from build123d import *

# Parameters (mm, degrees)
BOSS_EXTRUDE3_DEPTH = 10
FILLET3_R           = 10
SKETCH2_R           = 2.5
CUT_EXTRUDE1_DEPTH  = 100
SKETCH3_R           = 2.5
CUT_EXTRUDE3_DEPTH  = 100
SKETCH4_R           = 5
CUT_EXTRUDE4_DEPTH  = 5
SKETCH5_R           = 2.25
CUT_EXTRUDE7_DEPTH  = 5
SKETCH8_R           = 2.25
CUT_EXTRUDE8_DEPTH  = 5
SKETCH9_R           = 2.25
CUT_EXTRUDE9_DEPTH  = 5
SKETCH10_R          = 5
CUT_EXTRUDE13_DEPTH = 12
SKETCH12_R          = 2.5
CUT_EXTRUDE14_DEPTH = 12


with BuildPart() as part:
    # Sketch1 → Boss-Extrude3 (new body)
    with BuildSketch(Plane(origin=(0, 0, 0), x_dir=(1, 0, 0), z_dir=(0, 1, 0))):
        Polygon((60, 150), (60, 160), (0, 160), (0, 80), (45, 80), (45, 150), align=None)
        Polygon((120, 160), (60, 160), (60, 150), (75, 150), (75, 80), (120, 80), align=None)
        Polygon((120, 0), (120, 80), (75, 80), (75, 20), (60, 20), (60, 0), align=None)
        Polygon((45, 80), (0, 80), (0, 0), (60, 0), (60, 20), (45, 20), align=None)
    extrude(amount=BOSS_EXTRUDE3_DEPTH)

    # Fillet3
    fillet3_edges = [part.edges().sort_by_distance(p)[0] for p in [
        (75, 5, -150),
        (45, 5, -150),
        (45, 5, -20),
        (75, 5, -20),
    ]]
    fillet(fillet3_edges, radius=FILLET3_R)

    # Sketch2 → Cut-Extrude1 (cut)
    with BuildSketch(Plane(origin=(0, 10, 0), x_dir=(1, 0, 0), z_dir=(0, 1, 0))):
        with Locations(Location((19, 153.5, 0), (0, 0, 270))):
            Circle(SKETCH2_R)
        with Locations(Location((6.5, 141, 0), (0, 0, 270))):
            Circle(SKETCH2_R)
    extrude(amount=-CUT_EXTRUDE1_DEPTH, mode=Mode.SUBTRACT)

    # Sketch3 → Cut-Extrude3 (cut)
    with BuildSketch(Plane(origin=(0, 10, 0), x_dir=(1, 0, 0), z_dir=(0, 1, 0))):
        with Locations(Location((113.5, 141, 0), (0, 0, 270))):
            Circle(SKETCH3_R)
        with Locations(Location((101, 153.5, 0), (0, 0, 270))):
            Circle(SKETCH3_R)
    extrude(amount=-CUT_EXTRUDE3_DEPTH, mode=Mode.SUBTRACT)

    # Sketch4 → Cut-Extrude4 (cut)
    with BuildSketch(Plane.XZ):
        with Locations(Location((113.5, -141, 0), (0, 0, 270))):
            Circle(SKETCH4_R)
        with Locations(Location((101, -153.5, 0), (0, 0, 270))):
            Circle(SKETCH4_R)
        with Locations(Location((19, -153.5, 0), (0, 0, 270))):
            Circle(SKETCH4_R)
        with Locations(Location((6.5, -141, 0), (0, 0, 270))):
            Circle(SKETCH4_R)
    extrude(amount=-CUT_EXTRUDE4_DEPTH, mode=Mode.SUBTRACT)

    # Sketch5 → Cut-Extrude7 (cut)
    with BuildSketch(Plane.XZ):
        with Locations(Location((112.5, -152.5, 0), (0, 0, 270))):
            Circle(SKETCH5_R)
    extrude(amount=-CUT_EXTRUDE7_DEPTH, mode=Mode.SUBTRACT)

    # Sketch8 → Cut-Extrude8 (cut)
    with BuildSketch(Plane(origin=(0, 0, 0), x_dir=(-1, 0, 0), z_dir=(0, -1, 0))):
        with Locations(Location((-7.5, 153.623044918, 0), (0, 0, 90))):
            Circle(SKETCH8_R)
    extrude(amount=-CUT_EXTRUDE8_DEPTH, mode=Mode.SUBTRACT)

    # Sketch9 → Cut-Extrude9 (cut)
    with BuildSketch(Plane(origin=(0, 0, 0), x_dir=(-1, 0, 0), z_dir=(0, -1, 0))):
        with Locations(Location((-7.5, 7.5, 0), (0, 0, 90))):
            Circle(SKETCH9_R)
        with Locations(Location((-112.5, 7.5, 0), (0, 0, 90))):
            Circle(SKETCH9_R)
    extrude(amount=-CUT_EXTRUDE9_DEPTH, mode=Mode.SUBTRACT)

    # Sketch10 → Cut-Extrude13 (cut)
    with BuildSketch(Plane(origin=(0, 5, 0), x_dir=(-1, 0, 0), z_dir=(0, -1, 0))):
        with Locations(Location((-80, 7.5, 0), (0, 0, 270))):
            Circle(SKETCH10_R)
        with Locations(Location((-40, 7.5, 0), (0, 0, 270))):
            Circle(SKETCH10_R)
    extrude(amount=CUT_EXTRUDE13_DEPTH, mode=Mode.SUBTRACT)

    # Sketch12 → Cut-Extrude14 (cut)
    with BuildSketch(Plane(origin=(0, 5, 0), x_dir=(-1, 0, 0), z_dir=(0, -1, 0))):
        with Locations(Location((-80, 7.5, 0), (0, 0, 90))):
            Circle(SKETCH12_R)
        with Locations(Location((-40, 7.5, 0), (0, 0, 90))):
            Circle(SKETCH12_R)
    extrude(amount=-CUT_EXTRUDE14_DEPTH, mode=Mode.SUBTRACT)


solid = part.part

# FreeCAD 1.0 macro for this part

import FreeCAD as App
import Part
import Sketcher
from FreeCAD import Vector
Q = App.Units.Quantity


def edges_at(feature, points):
    """Names of the edges that pass closest to the given points."""
    edges = feature.Shape.Edges
    near = lambda p: min(range(len(edges)), key=lambda i: edges[i].distToShape(Part.Vertex(*p))[0])
    return sorted({f"Edge{near(p) + 1}" for p in points})

doc = App.newDocument("Part")
body = doc.addObject("PartDesign::Body", "Body")

sketch1 = doc.addObject("Sketcher::SketchObject", "Sketch")
body.addObject(sketch1)
sketch1.AttachmentSupport = (doc.XZ_Plane, [""])
sketch1.MapMode = "FlatFace"
sketch1.addGeometry(Part.LineSegment(Vector(0, -160, 0), Vector(0, 0, 0)), False)
sketch1.addGeometry(Part.LineSegment(Vector(0, 0, 0), Vector(120, 0, 0)), False)
sketch1.addGeometry(Part.LineSegment(Vector(120, 0, 0), Vector(120, -160, 0)), False)
sketch1.addGeometry(Part.LineSegment(Vector(120, -160, 0), Vector(0, -160, 0)), False)
sketch1.addGeometry(Part.LineSegment(Vector(45, -150, 0), Vector(75, -150, 0)), False)
sketch1.addGeometry(Part.LineSegment(Vector(75, -150, 0), Vector(75, -20, 0)), False)
sketch1.addGeometry(Part.LineSegment(Vector(75, -20, 0), Vector(45, -20, 0)), False)
sketch1.addGeometry(Part.LineSegment(Vector(45, -20, 0), Vector(45, -150, 0)), False)
sketch1.addConstraint(Sketcher.Constraint("Coincident", 0, 2, 1, 1))
sketch1.addConstraint(Sketcher.Constraint("Coincident", 1, 2, 2, 1))
sketch1.addConstraint(Sketcher.Constraint("Coincident", 2, 2, 3, 1))
sketch1.addConstraint(Sketcher.Constraint("Coincident", 3, 2, 0, 1))
sketch1.addConstraint(Sketcher.Constraint("Coincident", 4, 2, 5, 1))
sketch1.addConstraint(Sketcher.Constraint("Coincident", 5, 2, 6, 1))
sketch1.addConstraint(Sketcher.Constraint("Coincident", 6, 2, 7, 1))
sketch1.addConstraint(Sketcher.Constraint("Coincident", 7, 2, 4, 1))
sketch1.addConstraint(Sketcher.Constraint("Vertical", 0))
sketch1.addConstraint(Sketcher.Constraint("Horizontal", 1))
sketch1.addConstraint(Sketcher.Constraint("Vertical", 2))
sketch1.addConstraint(Sketcher.Constraint("Horizontal", 3))
sketch1.addConstraint(Sketcher.Constraint("Horizontal", 4))
sketch1.addConstraint(Sketcher.Constraint("Vertical", 5))
sketch1.addConstraint(Sketcher.Constraint("Horizontal", 6))
sketch1.addConstraint(Sketcher.Constraint("Vertical", 7))
sketch1.addConstraint(Sketcher.Constraint("Coincident", 0, 2, -1, 1))
sketch1.addConstraint(Sketcher.Constraint("DistanceX", 1, 1, 1, 2, Q("120 mm")))
sketch1.addConstraint(Sketcher.Constraint("DistanceX", 4, 1, 4, 2, Q("30 mm")))
sketch1.addConstraint(Sketcher.Constraint("DistanceY", 0, 1, 0, 2, Q("160 mm")))
sketch1.addConstraint(Sketcher.Constraint("DistanceY", 5, 1, 5, 2, Q("130 mm")))
sketch1.addConstraint(Sketcher.Constraint("DistanceX", -1, 1, 4, 2, Q("75 mm")))
sketch1.addConstraint(Sketcher.Constraint("DistanceY", 4, 2, -1, 1, Q("150 mm")))
pad1 = doc.addObject("PartDesign::Pad", "Pad")
body.addObject(pad1)
pad1.Profile = sketch1
pad1.Length = 10
pad1.Reversed = True
doc.recompute()

fillet = doc.addObject("PartDesign::Fillet", "Fillet")
body.addObject(fillet)
fillet.Base = (pad1, edges_at(pad1, [
    (75, 5, -150),
    (45, 5, -150),
    (45, 5, -20),
    (75, 5, -20),
]))
fillet.Radius = 10

sketch2 = doc.addObject("Sketcher::SketchObject", "Sketch001")
body.addObject(sketch2)
sketch2.AttachmentSupport = (doc.XZ_Plane, [""])
sketch2.MapMode = "FlatFace"
sketch2.AttachmentOffset = App.Placement(Vector(0, 0, -10), App.Rotation())
sketch2.addGeometry(Part.Circle(Vector(19, -153.5, 0), Vector(0, 0, 1), 2.5), False)
sketch2.addGeometry(Part.Circle(Vector(6.5, -141, 0), Vector(0, 0, 1), 2.5), False)
sketch2.addConstraint(Sketcher.Constraint("Equal", 0, 1))
sketch2.addConstraint(Sketcher.Constraint("Diameter", 0, Q("5 mm")))
sketch2.addConstraint(Sketcher.Constraint("DistanceX", -1, 1, 0, 3, Q("19 mm")))
sketch2.addConstraint(Sketcher.Constraint("DistanceY", 1, 3, -1, 1, Q("141 mm")))
sketch2.addConstraint(Sketcher.Constraint("DistanceY", 0, 3, -1, 1, Q("153.5 mm")))
sketch2.addConstraint(Sketcher.Constraint("DistanceX", -1, 1, 1, 3, Q("6.5 mm")))
pocket1 = doc.addObject("PartDesign::Pocket", "Pocket")
body.addObject(pocket1)
pocket1.Profile = sketch2
pocket1.Length = 100
pocket1.Reversed = True

sketch3 = doc.addObject("Sketcher::SketchObject", "Sketch002")
body.addObject(sketch3)
sketch3.AttachmentSupport = (doc.XZ_Plane, [""])
sketch3.MapMode = "FlatFace"
sketch3.AttachmentOffset = App.Placement(Vector(0, 0, -10), App.Rotation())
sketch3.addGeometry(Part.Circle(Vector(113.5, -141, 0), Vector(0, 0, 1), 2.5), False)
sketch3.addGeometry(Part.Circle(Vector(101, -153.5, 0), Vector(0, 0, 1), 2.5), False)
sketch3.addConstraint(Sketcher.Constraint("Equal", 0, 1))
sketch3.addConstraint(Sketcher.Constraint("Diameter", 0, Q("5 mm")))
sketch3.addConstraint(Sketcher.Constraint("DistanceY", 0, 3, -1, 1, Q("141 mm")))
sketch3.addConstraint(Sketcher.Constraint("DistanceX", -1, 1, 1, 3, Q("101 mm")))
sketch3.addConstraint(Sketcher.Constraint("DistanceX", -1, 1, 0, 3, Q("113.5 mm")))
sketch3.addConstraint(Sketcher.Constraint("DistanceY", 1, 3, -1, 1, Q("153.5 mm")))
pocket2 = doc.addObject("PartDesign::Pocket", "Pocket001")
body.addObject(pocket2)
pocket2.Profile = sketch3
pocket2.Length = 100
pocket2.Reversed = True

sketch4 = doc.addObject("Sketcher::SketchObject", "Sketch003")
body.addObject(sketch4)
sketch4.AttachmentSupport = (doc.XZ_Plane, [""])
sketch4.MapMode = "FlatFace"
sketch4.addGeometry(Part.Circle(Vector(114, -141, 0), Vector(0, 0, 1), 5), False)
sketch4.addGeometry(Part.Circle(Vector(101, -154, 0), Vector(0, 0, 1), 5), False)
sketch4.addGeometry(Part.Circle(Vector(19, -154, 0), Vector(0, 0, 1), 5), False)
sketch4.addGeometry(Part.Circle(Vector(6, -141, 0), Vector(0, 0, 1), 5), False)
sketch4.addConstraint(Sketcher.Constraint("Equal", 0, 1))
sketch4.addConstraint(Sketcher.Constraint("Equal", 1, 2))
sketch4.addConstraint(Sketcher.Constraint("Equal", 2, 3))
sketch4.addConstraint(Sketcher.Constraint("Horizontal", 1, 3, 2, 3))
sketch4.addConstraint(Sketcher.Constraint("Horizontal", 0, 3, 3, 3))
sketch4.addConstraint(Sketcher.Constraint("Diameter", 0, Q("10 mm")))
sketch4.addConstraint(Sketcher.Constraint("DistanceY", 0, 3, -1, 1, Q("141 mm")))
sketch4.addConstraint(Sketcher.Constraint("DistanceX", -1, 1, 1, 3, Q("101 mm")))
sketch4.addConstraint(Sketcher.Constraint("DistanceX", -1, 1, 2, 3, Q("19 mm")))
sketch4.addConstraint(Sketcher.Constraint("DistanceX", 3, 3, 0, 3, Q("107 mm")))
sketch4.addConstraint(Sketcher.Constraint("DistanceX", -1, 1, 0, 3, Q("113.5 mm")))
sketch4.addConstraint(Sketcher.Constraint("DistanceY", 1, 3, -1, 1, Q("153.5 mm")))
pocket3 = doc.addObject("PartDesign::Pocket", "Pocket002")
body.addObject(pocket3)
pocket3.Profile = sketch4
pocket3.Length = 5

sketch5 = doc.addObject("Sketcher::SketchObject", "Sketch004")
body.addObject(sketch5)
sketch5.AttachmentSupport = (doc.XZ_Plane, [""])
sketch5.MapMode = "FlatFace"
sketch5.addGeometry(Part.Circle(Vector(112.5, -152.5, 0), Vector(0, 0, 1), 2.2), False)
sketch5.addConstraint(Sketcher.Constraint("Diameter", 0, Q("4.5 mm")))
sketch5.addConstraint(Sketcher.Constraint("DistanceX", -1, 1, 0, 3, Q("112.5 mm")))
sketch5.addConstraint(Sketcher.Constraint("DistanceY", 0, 3, -1, 1, Q("152.5 mm")))
pocket4 = doc.addObject("PartDesign::Pocket", "Pocket003")
body.addObject(pocket4)
pocket4.Profile = sketch5
pocket4.Length = 5

sketch6 = doc.addObject("Sketcher::SketchObject", "Sketch005")
body.addObject(sketch6)
sketch6.AttachmentSupport = (doc.XZ_Plane, [""])
sketch6.MapMode = "FlatFace"
sketch6.addGeometry(Part.Circle(Vector(7.5, -153.6, 0), Vector(0, 0, 1), 2.2), False)
sketch6.addConstraint(Sketcher.Constraint("Diameter", 0, Q("4.5 mm")))
sketch6.addConstraint(Sketcher.Constraint("DistanceX", -1, 1, 0, 3, Q("7.5 mm")))
sketch6.addConstraint(Sketcher.Constraint("DistanceY", 0, 3, -1, 1, Q("153.623045 mm")))
pocket5 = doc.addObject("PartDesign::Pocket", "Pocket004")
body.addObject(pocket5)
pocket5.Profile = sketch6
pocket5.Length = 5

sketch7 = doc.addObject("Sketcher::SketchObject", "Sketch006")
body.addObject(sketch7)
sketch7.AttachmentSupport = (doc.XZ_Plane, [""])
sketch7.MapMode = "FlatFace"
sketch7.addGeometry(Part.Circle(Vector(7.5, -7.5, 0), Vector(0, 0, 1), 2.2), False)
sketch7.addGeometry(Part.Circle(Vector(112.5, -7.5, 0), Vector(0, 0, 1), 2.2), False)
sketch7.addConstraint(Sketcher.Constraint("Equal", 0, 1))
sketch7.addConstraint(Sketcher.Constraint("Horizontal", 0, 3, 1, 3))
sketch7.addConstraint(Sketcher.Constraint("Diameter", 0, Q("4.5 mm")))
sketch7.addConstraint(Sketcher.Constraint("DistanceX", 0, 3, 1, 3, Q("105 mm")))
sketch7.addConstraint(Sketcher.Constraint("DistanceX", -1, 1, 0, 3, Q("7.5 mm")))
sketch7.addConstraint(Sketcher.Constraint("DistanceY", 0, 3, -1, 1, Q("7.5 mm")))
pocket6 = doc.addObject("PartDesign::Pocket", "Pocket005")
body.addObject(pocket6)
pocket6.Profile = sketch7
pocket6.Length = 5

sketch8 = doc.addObject("Sketcher::SketchObject", "Sketch007")
body.addObject(sketch8)
sketch8.AttachmentSupport = (doc.XZ_Plane, [""])
sketch8.MapMode = "FlatFace"
sketch8.AttachmentOffset = App.Placement(Vector(0, 0, -5), App.Rotation())
sketch8.addGeometry(Part.Circle(Vector(80, -8, 0), Vector(0, 0, 1), 5), False)
sketch8.addGeometry(Part.Circle(Vector(40, -8, 0), Vector(0, 0, 1), 5), False)
sketch8.addConstraint(Sketcher.Constraint("Equal", 0, 1))
sketch8.addConstraint(Sketcher.Constraint("Horizontal", 0, 3, 1, 3))
sketch8.addConstraint(Sketcher.Constraint("Diameter", 0, Q("10 mm")))
sketch8.addConstraint(Sketcher.Constraint("DistanceX", -1, 1, 0, 3, Q("80 mm")))
sketch8.addConstraint(Sketcher.Constraint("DistanceX", -1, 1, 1, 3, Q("40 mm")))
sketch8.addConstraint(Sketcher.Constraint("DistanceY", 0, 3, -1, 1, Q("7.5 mm")))
pocket7 = doc.addObject("PartDesign::Pocket", "Pocket006")
body.addObject(pocket7)
pocket7.Profile = sketch8
pocket7.Length = 12
pocket7.Reversed = True

sketch9 = doc.addObject("Sketcher::SketchObject", "Sketch008")
body.addObject(sketch9)
sketch9.AttachmentSupport = (doc.XZ_Plane, [""])
sketch9.MapMode = "FlatFace"
sketch9.AttachmentOffset = App.Placement(Vector(0, 0, -5), App.Rotation())
sketch9.addGeometry(Part.Circle(Vector(80, -7.5, 0), Vector(0, 0, 1), 2.5), False)
sketch9.addGeometry(Part.Circle(Vector(40, -7.5, 0), Vector(0, 0, 1), 2.5), False)
sketch9.addConstraint(Sketcher.Constraint("Equal", 0, 1))
sketch9.addConstraint(Sketcher.Constraint("Horizontal", 0, 3, 1, 3))
sketch9.addConstraint(Sketcher.Constraint("Diameter", 0, Q("5 mm")))
sketch9.addConstraint(Sketcher.Constraint("DistanceX", -1, 1, 0, 3, Q("80 mm")))
sketch9.addConstraint(Sketcher.Constraint("DistanceX", -1, 1, 1, 3, Q("40 mm")))
sketch9.addConstraint(Sketcher.Constraint("DistanceY", 0, 3, -1, 1, Q("7.5 mm")))
pocket8 = doc.addObject("PartDesign::Pocket", "Pocket007")
body.addObject(pocket8)
pocket8.Profile = sketch9
pocket8.Length = 12

doc.recompute()
